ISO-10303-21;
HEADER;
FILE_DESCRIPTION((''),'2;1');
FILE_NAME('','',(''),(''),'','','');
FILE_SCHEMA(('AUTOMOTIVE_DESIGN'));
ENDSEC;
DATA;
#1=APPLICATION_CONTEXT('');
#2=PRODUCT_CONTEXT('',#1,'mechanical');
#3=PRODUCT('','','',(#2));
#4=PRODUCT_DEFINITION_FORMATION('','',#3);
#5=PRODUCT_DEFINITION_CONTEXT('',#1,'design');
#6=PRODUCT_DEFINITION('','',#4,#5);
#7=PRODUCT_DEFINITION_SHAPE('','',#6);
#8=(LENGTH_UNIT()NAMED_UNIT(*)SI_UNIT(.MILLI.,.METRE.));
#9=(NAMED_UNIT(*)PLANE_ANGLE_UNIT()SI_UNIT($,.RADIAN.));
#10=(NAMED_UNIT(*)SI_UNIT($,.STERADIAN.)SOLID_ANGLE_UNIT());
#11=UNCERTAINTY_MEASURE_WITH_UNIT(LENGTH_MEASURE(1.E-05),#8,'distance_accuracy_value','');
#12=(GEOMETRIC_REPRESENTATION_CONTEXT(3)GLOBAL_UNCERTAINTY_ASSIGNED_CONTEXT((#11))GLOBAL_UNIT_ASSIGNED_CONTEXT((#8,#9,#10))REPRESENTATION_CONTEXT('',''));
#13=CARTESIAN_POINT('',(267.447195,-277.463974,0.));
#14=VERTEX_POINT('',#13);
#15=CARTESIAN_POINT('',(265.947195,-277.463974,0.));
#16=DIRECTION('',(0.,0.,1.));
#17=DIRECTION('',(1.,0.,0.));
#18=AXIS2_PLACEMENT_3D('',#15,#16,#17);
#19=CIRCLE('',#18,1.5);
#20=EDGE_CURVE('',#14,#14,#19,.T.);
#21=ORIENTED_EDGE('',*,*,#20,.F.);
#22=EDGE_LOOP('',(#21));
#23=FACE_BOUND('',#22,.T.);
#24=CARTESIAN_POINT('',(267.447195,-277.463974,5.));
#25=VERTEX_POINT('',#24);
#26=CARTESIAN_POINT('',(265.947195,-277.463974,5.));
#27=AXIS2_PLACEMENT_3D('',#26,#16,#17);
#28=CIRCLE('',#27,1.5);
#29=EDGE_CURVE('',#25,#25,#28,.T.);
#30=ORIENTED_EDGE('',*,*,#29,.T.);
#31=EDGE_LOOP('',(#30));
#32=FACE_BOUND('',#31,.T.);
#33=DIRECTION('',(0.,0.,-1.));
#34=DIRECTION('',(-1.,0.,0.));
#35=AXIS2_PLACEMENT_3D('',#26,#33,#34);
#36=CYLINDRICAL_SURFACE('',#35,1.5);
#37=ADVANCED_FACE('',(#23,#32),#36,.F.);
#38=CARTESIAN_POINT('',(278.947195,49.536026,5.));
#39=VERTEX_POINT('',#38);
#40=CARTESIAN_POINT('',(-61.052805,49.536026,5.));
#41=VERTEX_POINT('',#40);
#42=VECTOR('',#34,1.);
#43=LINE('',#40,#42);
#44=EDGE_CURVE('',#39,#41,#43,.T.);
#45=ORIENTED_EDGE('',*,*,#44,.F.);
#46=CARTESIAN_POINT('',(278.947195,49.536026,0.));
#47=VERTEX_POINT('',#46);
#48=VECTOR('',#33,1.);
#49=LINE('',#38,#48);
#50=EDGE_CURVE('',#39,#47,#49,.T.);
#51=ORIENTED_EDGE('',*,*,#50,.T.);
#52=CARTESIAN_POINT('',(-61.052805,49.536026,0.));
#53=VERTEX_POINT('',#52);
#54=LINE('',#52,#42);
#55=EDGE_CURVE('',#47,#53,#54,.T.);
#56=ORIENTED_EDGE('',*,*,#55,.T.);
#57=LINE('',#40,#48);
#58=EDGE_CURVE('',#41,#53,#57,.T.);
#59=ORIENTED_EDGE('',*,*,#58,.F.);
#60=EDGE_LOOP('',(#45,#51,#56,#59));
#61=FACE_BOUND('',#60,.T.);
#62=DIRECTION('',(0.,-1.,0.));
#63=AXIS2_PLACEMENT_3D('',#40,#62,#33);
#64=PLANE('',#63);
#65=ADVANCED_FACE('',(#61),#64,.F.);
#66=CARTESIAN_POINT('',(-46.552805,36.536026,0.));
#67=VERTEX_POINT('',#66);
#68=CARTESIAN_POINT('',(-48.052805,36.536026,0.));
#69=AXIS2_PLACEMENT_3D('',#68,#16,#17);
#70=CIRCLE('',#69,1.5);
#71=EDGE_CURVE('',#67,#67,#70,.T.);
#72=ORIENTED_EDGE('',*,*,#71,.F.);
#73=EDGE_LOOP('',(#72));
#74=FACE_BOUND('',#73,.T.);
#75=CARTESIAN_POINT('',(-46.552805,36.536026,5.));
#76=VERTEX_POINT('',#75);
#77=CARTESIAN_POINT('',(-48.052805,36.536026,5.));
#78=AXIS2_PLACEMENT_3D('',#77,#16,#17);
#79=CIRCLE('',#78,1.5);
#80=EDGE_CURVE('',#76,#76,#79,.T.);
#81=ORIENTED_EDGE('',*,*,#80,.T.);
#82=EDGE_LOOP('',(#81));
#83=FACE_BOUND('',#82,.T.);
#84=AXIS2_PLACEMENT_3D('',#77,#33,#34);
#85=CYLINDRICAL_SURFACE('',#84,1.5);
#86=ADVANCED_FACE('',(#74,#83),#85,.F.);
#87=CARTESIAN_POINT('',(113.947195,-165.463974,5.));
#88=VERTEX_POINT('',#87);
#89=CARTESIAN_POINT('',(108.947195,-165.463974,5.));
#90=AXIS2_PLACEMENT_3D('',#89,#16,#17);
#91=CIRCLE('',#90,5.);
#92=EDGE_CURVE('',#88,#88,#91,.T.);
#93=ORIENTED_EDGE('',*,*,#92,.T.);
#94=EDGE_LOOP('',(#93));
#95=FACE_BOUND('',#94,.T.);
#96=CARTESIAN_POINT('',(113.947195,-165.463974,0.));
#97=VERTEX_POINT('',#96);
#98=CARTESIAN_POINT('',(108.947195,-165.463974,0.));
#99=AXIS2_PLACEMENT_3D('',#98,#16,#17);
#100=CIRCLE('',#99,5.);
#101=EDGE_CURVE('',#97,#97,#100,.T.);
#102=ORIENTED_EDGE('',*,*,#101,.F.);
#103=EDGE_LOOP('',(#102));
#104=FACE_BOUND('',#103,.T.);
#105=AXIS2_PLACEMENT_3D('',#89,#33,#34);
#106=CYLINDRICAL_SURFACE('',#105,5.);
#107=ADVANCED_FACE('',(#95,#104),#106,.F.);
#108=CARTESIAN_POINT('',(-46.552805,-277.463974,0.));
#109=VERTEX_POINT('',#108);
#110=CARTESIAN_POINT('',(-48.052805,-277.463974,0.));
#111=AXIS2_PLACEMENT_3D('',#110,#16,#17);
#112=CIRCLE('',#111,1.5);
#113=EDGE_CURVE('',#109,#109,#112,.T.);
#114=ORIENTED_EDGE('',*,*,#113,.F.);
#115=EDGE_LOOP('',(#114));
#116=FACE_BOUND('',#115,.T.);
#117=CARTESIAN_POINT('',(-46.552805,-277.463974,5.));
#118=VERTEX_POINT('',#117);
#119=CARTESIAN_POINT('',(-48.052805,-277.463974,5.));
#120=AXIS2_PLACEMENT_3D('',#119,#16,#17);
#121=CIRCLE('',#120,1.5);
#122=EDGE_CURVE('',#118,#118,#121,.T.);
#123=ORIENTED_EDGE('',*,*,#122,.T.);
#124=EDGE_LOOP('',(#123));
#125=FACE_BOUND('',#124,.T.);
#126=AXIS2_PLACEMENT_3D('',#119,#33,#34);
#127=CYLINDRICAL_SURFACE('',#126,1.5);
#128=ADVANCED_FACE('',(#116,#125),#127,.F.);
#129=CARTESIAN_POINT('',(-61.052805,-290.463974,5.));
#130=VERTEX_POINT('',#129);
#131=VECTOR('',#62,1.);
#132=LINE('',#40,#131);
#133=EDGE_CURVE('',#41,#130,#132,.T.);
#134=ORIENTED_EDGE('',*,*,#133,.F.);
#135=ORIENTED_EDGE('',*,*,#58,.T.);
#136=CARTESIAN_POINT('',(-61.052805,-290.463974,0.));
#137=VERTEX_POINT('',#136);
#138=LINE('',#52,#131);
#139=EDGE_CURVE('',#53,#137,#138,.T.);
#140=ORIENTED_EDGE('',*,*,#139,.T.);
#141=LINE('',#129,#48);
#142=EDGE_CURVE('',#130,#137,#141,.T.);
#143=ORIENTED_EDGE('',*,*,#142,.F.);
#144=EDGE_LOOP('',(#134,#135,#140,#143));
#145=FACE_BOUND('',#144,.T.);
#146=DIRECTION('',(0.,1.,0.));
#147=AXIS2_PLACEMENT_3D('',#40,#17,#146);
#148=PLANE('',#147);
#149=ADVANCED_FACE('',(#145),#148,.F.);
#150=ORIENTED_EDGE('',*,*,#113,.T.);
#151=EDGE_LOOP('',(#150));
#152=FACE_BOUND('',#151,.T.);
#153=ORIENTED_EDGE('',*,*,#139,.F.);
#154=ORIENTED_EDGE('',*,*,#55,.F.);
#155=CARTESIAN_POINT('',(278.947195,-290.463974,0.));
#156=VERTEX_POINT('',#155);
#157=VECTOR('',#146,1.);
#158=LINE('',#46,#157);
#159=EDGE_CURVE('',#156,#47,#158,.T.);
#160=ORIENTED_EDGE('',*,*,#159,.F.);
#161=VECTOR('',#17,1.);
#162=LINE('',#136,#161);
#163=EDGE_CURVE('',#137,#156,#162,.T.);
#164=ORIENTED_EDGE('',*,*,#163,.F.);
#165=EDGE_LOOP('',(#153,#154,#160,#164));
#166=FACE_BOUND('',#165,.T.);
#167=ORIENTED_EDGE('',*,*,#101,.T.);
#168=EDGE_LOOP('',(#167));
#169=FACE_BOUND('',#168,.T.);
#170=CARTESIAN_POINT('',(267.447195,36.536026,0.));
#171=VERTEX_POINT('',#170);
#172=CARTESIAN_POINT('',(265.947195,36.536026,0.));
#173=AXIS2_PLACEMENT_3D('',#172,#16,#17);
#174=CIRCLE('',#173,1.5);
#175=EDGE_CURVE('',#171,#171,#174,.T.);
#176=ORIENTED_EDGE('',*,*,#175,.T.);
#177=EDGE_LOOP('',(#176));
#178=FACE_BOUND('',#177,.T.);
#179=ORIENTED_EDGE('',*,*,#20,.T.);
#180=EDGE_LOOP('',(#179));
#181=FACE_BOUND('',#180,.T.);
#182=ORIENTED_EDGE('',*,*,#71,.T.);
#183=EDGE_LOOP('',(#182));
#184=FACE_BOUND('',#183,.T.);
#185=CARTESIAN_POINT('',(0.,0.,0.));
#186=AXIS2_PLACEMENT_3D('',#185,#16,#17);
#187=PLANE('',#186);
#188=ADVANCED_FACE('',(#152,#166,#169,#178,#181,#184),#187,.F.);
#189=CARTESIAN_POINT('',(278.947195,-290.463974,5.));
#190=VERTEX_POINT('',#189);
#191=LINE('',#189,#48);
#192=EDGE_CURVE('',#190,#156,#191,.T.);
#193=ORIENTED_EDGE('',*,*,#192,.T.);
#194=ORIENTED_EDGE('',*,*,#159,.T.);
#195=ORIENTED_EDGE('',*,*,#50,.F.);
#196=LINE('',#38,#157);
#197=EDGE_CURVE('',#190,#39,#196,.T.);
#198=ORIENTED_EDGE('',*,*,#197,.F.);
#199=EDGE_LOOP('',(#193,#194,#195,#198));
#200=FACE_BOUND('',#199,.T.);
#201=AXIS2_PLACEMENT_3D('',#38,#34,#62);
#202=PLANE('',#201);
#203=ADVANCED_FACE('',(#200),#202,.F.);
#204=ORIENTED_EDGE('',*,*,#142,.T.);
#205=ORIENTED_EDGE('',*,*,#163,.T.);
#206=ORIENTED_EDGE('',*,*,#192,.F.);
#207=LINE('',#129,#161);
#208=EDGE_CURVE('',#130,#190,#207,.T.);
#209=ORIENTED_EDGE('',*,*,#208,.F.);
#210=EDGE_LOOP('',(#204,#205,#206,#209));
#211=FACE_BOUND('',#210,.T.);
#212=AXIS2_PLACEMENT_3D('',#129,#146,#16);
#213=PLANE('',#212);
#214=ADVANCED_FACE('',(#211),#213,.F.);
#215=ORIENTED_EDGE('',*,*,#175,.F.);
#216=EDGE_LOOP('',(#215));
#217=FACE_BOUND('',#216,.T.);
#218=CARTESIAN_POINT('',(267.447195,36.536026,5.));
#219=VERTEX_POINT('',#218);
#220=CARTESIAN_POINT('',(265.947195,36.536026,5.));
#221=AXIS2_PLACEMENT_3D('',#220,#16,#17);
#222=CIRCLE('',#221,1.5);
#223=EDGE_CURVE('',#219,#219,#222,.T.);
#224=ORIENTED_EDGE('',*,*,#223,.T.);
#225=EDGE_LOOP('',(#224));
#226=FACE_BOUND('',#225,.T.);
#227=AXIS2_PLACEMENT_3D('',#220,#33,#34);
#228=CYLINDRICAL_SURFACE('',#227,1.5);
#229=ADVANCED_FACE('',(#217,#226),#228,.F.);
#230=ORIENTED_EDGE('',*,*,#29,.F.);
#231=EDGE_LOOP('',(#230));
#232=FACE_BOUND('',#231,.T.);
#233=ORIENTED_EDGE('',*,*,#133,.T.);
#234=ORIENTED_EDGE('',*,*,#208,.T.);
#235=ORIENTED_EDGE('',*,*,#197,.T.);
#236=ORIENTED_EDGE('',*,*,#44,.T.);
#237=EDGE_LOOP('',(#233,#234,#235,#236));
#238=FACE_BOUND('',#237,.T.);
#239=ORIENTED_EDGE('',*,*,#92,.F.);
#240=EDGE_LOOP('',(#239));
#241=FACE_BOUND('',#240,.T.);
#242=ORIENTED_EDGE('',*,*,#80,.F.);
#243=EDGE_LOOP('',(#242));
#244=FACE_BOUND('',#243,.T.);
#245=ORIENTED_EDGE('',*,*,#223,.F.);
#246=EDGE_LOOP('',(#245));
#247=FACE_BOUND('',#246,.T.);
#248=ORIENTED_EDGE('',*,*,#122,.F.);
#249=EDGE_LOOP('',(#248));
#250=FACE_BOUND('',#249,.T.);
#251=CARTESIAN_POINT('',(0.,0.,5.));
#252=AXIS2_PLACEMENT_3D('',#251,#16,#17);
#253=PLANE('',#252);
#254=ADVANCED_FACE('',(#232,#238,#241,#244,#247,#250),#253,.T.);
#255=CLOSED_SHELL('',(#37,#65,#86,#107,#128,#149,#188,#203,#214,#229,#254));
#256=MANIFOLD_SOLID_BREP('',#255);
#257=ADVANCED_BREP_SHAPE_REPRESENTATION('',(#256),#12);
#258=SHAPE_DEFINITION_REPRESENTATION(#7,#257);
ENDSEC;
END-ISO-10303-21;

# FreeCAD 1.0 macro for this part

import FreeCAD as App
import Part
import Sketcher


def add_polygon(sketch, points):
    """Adds a closed chain of lines whose ends are joined by coincident constraints."""
    first, n = sketch.GeometryCount, len(points)
    for a, b in zip(points, points[1:] + points[:1]):
        sketch.addGeometry(Part.LineSegment(App.Vector(*a, 0), App.Vector(*b, 0)), False)
    for i in range(n):
        sketch.addConstraint(Sketcher.Constraint("Coincident", first + i, 2, first + (i + 1) % n, 1))

doc = App.newDocument("Part")
body = doc.addObject("PartDesign::Body", "Body")

# Sketch on XY plane
sketch1 = body.newObject("Sketcher::SketchObject", "Sketch")
sketch1.AttachmentSupport = (doc.getObject("XY_Plane"), [""])
sketch1.MapMode = "FlatFace"
add_polygon(sketch1, [(-61.1, 49.5), (-61.1, -290.5), (278.9, -290.5), (278.9, 49.5)])  # lines 0-3
sketch1.addGeometry(Part.Circle(App.Vector(-48.1, -277.5, 0), App.Vector(0, 0, 1), 1.5), False)  # 4
sketch1.addGeometry(Part.Circle(App.Vector(265.9, -277.5, 0), App.Vector(0, 0, 1), 1.5), False)  # 5
sketch1.addGeometry(Part.Circle(App.Vector(108.9, -165.5, 0), App.Vector(0, 0, 1), 5), False)  # 6
sketch1.addGeometry(Part.Circle(App.Vector(-48.1, 36.5, 0), App.Vector(0, 0, 1), 1.5), False)  # 7
sketch1.addGeometry(Part.Circle(App.Vector(265.9, 36.5, 0), App.Vector(0, 0, 1), 1.5), False)  # 8
sketch1.addConstraint(Sketcher.Constraint("Vertical", 0))
sketch1.addConstraint(Sketcher.Constraint("Horizontal", 1))
sketch1.addConstraint(Sketcher.Constraint("Vertical", 2))
sketch1.addConstraint(Sketcher.Constraint("Horizontal", 3))
sketch1.addConstraint(Sketcher.Constraint("Equal", 4, 5))
sketch1.addConstraint(Sketcher.Constraint("Equal", 5, 7))
sketch1.addConstraint(Sketcher.Constraint("Equal", 7, 8))
sketch1.addConstraint(Sketcher.Constraint("Horizontal", 4, 3, 5, 3))
sketch1.addConstraint(Sketcher.Constraint("Horizontal", 7, 3, 8, 3))
sketch1.addConstraint(Sketcher.Constraint("Vertical", 4, 3, 7, 3))
sketch1.addConstraint(Sketcher.Constraint("Vertical", 5, 3, 8, 3))
sketch1.addConstraint(Sketcher.Constraint("Equal", 3, 0))
sketch1.addConstraint(Sketcher.Constraint("Diameter", 4, 3.0))
sketch1.addConstraint(Sketcher.Constraint("Diameter", 6, 10.0))
sketch1.addConstraint(Sketcher.Constraint("DistanceX", 1, 1, 1, 2, 340.0))
sketch1.addConstraint(Sketcher.Constraint("DistanceX", 4, 3, 5, 3, 314.0))
sketch1.addConstraint(Sketcher.Constraint("DistanceX", 4, 3, 6, 3, 157.0))
sketch1.addConstraint(Sketcher.Constraint("DistanceY", 4, 3, 6, 3, 112.0))
sketch1.addConstraint(Sketcher.Constraint("DistanceY", 6, 3, 7, 3, 202.0))
sketch1.addConstraint(Sketcher.Constraint("DistanceX", 0, 2, 4, 3, 13.0))
sketch1.addConstraint(Sketcher.Constraint("DistanceY", 0, 2, 4, 3, 13.0))
sketch1.addConstraint(Sketcher.Constraint("DistanceX", 4, 3, -1, 1, 48.052805))
sketch1.addConstraint(Sketcher.Constraint("DistanceY", 4, 3, -1, 1, 277.463974))
pad1 = body.newObject("PartDesign::Pad", "Pad")
pad1.Profile = sketch1
pad1.Length = 5

doc.recompute()
